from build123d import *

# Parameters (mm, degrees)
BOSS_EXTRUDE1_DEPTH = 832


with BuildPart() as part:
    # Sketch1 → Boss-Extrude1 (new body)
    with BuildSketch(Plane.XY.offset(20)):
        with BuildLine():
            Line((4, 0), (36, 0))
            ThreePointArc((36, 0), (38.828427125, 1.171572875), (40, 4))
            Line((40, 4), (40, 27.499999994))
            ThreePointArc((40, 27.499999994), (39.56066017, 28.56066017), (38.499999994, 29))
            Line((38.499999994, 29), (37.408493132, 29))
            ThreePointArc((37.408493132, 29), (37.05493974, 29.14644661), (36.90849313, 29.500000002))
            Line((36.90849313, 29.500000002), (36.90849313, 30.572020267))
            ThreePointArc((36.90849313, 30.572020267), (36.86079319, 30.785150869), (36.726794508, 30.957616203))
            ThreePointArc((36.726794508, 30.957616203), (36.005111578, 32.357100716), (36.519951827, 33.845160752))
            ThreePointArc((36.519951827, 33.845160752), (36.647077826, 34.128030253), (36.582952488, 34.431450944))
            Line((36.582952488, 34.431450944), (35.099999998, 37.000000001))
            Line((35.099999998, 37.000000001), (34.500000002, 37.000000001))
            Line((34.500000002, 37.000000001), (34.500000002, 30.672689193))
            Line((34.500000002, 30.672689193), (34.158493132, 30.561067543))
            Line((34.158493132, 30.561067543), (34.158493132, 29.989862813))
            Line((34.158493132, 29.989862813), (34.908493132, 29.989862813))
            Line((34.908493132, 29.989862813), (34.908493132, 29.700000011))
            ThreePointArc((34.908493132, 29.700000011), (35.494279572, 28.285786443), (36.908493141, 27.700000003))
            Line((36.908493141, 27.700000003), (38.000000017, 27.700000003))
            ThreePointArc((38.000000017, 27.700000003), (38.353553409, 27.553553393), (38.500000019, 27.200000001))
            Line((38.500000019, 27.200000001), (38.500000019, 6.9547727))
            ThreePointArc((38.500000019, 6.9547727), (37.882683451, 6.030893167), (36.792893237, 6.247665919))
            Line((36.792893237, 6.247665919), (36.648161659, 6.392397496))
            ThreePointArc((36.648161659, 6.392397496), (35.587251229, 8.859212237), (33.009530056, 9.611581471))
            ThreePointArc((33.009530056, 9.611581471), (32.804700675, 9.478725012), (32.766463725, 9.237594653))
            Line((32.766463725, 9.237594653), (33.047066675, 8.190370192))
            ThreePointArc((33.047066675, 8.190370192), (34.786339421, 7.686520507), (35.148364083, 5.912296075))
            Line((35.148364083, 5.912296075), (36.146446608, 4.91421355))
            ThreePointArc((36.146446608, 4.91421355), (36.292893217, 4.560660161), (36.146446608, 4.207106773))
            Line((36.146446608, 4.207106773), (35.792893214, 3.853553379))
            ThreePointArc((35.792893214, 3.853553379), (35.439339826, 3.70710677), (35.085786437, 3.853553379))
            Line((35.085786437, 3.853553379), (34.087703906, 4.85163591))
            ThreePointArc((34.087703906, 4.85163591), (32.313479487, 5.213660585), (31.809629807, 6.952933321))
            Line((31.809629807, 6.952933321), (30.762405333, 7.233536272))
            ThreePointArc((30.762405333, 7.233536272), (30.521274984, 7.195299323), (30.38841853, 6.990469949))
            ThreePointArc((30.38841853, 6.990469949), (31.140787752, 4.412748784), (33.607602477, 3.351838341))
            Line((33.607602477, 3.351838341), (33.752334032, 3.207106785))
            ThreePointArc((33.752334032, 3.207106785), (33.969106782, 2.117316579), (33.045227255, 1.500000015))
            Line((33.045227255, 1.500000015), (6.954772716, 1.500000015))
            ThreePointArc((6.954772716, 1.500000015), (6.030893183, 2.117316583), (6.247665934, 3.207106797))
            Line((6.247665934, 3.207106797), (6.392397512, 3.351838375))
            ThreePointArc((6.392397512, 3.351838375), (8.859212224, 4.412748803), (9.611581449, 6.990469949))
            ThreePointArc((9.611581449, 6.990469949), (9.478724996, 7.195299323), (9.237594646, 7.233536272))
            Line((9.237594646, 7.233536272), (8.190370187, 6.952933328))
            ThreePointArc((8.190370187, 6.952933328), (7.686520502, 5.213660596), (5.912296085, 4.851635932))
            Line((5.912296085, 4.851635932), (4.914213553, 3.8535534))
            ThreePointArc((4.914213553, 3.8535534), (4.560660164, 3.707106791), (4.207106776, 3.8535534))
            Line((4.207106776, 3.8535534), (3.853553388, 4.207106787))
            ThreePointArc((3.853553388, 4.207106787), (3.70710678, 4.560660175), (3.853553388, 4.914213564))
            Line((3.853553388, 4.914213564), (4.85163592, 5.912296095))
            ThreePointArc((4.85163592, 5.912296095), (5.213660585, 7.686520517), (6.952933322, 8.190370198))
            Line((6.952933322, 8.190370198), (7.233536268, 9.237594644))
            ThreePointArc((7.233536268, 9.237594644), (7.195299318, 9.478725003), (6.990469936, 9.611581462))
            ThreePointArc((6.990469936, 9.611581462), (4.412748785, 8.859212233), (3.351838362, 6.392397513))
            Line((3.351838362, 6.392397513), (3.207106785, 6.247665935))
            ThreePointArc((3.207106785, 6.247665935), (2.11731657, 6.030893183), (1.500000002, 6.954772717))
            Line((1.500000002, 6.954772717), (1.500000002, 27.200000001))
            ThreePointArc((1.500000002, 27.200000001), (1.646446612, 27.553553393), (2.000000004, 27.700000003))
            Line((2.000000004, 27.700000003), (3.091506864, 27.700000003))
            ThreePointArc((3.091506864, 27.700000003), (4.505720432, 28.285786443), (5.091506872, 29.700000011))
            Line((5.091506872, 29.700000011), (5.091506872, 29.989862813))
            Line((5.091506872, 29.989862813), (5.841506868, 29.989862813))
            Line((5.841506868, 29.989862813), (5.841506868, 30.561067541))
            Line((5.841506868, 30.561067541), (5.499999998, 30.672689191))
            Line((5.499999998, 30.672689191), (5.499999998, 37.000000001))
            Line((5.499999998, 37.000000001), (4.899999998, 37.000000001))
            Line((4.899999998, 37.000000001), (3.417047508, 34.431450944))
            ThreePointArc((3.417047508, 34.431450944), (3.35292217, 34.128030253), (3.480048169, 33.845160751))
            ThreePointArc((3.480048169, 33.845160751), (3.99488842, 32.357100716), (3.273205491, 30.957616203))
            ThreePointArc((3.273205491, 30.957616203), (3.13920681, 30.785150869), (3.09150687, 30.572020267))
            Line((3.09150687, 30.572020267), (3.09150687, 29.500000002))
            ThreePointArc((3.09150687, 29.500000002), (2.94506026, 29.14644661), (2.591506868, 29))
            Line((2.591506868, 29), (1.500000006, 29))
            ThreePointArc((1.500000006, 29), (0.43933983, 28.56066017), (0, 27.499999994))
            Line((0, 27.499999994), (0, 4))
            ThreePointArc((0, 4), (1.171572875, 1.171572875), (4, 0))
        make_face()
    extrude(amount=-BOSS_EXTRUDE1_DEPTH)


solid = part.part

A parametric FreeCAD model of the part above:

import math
import FreeCAD as App
import Part
import Sketcher
Q = App.Units.Quantity

doc = App.newDocument("Part")
body = doc.addObject("PartDesign::Body", "Body")

# Sketch on XY plane
sketch1 = body.newObject("Sketcher::SketchObject", "Sketch")
sketch1.AttachmentSupport = (doc.getObject("XY_Plane"), [""])
sketch1.MapMode = "FlatFace"
sketch1.AttachmentOffset = App.Placement(App.Vector(0, 0, 20), App.Rotation())
sketch1.addGeometry([
    Part.LineSegment(App.Vector(4, 0, 0), App.Vector(36, 0, 0)),  # 0
    Part.ArcOfCircle(Part.Circle(App.Vector(36, 4, 0), App.Vector(0, 0, 1), 4), math.radians(-90), math.radians(0)),  # 1
    Part.LineSegment(App.Vector(40, 4, 0), App.Vector(40, 27.5, 0)),  # 2
    Part.ArcOfCircle(Part.Circle(App.Vector(38.5, 27.5, 0), App.Vector(0, 0, 1), 1.5), math.radians(0), math.radians(90)),  # 3
    Part.LineSegment(App.Vector(38.5, 29, 0), App.Vector(37.41, 29, 0)),  # 4
    Part.ArcOfCircle(Part.Circle(App.Vector(37.41, 29.5, 0), App.Vector(0, 0, 1), 0.5), math.radians(180), math.radians(270)),  # 5
    Part.LineSegment(App.Vector(36.91, 29.5, 0), App.Vector(36.91, 30.57, 0)),  # 6
    Part.ArcOfCircle(Part.Circle(App.Vector(36.41, 30.57, 0), App.Vector(0, 0, 1), 0.5), math.radians(0), math.radians(50)),  # 7
    Part.ArcOfCircle(Part.Circle(App.Vector(38, 32.5, 0), App.Vector(0, 0, 1), 2), math.radians(138), math.radians(230)),  # 8
    Part.ArcOfCircle(Part.Circle(App.Vector(36.15, 34.18, 0), App.Vector(0, 0, 1), 0.5), math.radians(-42), math.radians(30)),  # 9
    Part.LineSegment(App.Vector(36.58, 34.43, 0), App.Vector(35.1, 37, 0)),  # 10
    Part.LineSegment(App.Vector(35.1, 37, 0), App.Vector(34.5, 37, 0)),  # 11
    Part.LineSegment(App.Vector(34.5, 37, 0), App.Vector(34.5, 30.67, 0)),  # 12
    Part.LineSegment(App.Vector(34.5, 30.67, 0), App.Vector(34.16, 30.56, 0)),  # 13
    Part.LineSegment(App.Vector(34.16, 30.56, 0), App.Vector(34.16, 29.99, 0)),  # 14
    Part.LineSegment(App.Vector(34.16, 29.99, 0), App.Vector(34.91, 29.99, 0)),  # 15
    Part.LineSegment(App.Vector(34.91, 29.99, 0), App.Vector(34.91, 29.7, 0)),  # 16
    Part.ArcOfCircle(Part.Circle(App.Vector(36.91, 29.7, 0), App.Vector(0, 0, 1), 2), math.radians(180), math.radians(270)),  # 17
    Part.LineSegment(App.Vector(36.91, 27.7, 0), App.Vector(38, 27.7, 0)),  # 18
    Part.ArcOfCircle(Part.Circle(App.Vector(38, 27.2, 0), App.Vector(0, 0, 1), 0.5), math.radians(0), math.radians(90)),  # 19
    Part.LineSegment(App.Vector(38.5, 27.2, 0), App.Vector(38.5, 6.95, 0)),  # 20
    Part.ArcOfCircle(Part.Circle(App.Vector(37.5, 6.95, 0), App.Vector(0, 0, 1), 1), math.radians(-135), math.radians(0)),  # 21
    Part.LineSegment(App.Vector(36.79, 6.25, 0), App.Vector(36.65, 6.39, 0)),  # 22
    Part.ArcOfCircle(Part.Circle(App.Vector(33.5, 6.5, 0), App.Vector(0, 0, 1), 3.15), math.radians(-2), math.radians(99)),  # 23
    Part.ArcOfCircle(Part.Circle(App.Vector(33.06, 9.32, 0), App.Vector(0, 0, 1), 0.3), math.radians(99), math.radians(195)),  # 24
    Part.LineSegment(App.Vector(32.77, 9.24, 0), App.Vector(33.05, 8.19, 0)),  # 25
    Part.ArcOfCircle(Part.Circle(App.Vector(33.5, 6.5, 0), App.Vector(0, 0, 1), 1.75), math.radians(-20), math.radians(105)),  # 26
    Part.LineSegment(App.Vector(35.15, 5.91, 0), App.Vector(36.15, 4.91, 0)),  # 27
    Part.ArcOfCircle(Part.Circle(App.Vector(35.79, 4.56, 0), App.Vector(0, 0, 1), 0.5), math.radians(-45), math.radians(45)),  # 28
    Part.LineSegment(App.Vector(36.15, 4.21, 0), App.Vector(35.79, 3.85, 0)),  # 29
    Part.ArcOfCircle(Part.Circle(App.Vector(35.44, 4.21, 0), App.Vector(0, 0, 1), 0.5), math.radians(-135), math.radians(-45)),  # 30
    Part.LineSegment(App.Vector(35.09, 3.85, 0), App.Vector(34.09, 4.85, 0)),  # 31
    Part.ArcOfCircle(Part.Circle(App.Vector(33.5, 6.5, 0), App.Vector(0, 0, 1), 1.75), math.radians(165), math.radians(290)),  # 32
    Part.LineSegment(App.Vector(31.81, 6.95, 0), App.Vector(30.76, 7.23, 0)),  # 33
    Part.ArcOfCircle(Part.Circle(App.Vector(30.68, 6.94, 0), App.Vector(0, 0, 1), 0.3), math.radians(75), math.radians(171)),  # 34
    Part.ArcOfCircle(Part.Circle(App.Vector(33.5, 6.5, 0), App.Vector(0, 0, 1), 3.15), math.radians(171), math.radians(272)),  # 35
    Part.LineSegment(App.Vector(33.61, 3.35, 0), App.Vector(33.75, 3.21, 0)),  # 36
    Part.ArcOfCircle(Part.Circle(App.Vector(33.05, 2.5, 0), App.Vector(0, 0, 1), 1), math.radians(-90), math.radians(45)),  # 37
    Part.LineSegment(App.Vector(33.05, 1.5, 0), App.Vector(6.95, 1.5, 0)),  # 38
    Part.ArcOfCircle(Part.Circle(App.Vector(6.95, 2.5, 0), App.Vector(0, 0, 1), 1), math.radians(135), math.radians(270)),  # 39
    Part.LineSegment(App.Vector(6.25, 3.21, 0), App.Vector(6.39, 3.35, 0)),  # 40
    Part.ArcOfCircle(Part.Circle(App.Vector(6.5, 6.5, 0), App.Vector(0, 0, 1), 3.15), math.radians(-92), math.radians(9)),  # 41
    Part.ArcOfCircle(Part.Circle(App.Vector(9.32, 6.94, 0), App.Vector(0, 0, 1), 0.3), math.radians(9), math.radians(105)),  # 42
    Part.LineSegment(App.Vector(9.24, 7.23, 0), App.Vector(8.19, 6.95, 0)),  # 43
    Part.ArcOfCircle(Part.Circle(App.Vector(6.5, 6.5, 0), App.Vector(0, 0, 1), 1.75), math.radians(-110), math.radians(15)),  # 44
    Part.LineSegment(App.Vector(5.91, 4.85, 0), App.Vector(4.91, 3.85, 0)),  # 45
    Part.ArcOfCircle(Part.Circle(App.Vector(4.56, 4.21, 0), App.Vector(0, 0, 1), 0.5), math.radians(-135), math.radians(-45)),  # 46
    Part.LineSegment(App.Vector(4.21, 3.85, 0), App.Vector(3.85, 4.21, 0)),  # 47
    Part.ArcOfCircle(Part.Circle(App.Vector(4.21, 4.56, 0), App.Vector(0, 0, 1), 0.5), math.radians(135), math.radians(225)),  # 48
    Part.LineSegment(App.Vector(3.85, 4.91, 0), App.Vector(4.85, 5.91, 0)),  # 49
    Part.ArcOfCircle(Part.Circle(App.Vector(6.5, 6.5, 0), App.Vector(0, 0, 1), 1.75), math.radians(75), math.radians(200)),  # 50
    Part.LineSegment(App.Vector(6.95, 8.19, 0), App.Vector(7.23, 9.24, 0)),  # 51
    Part.ArcOfCircle(Part.Circle(App.Vector(6.94, 9.32, 0), App.Vector(0, 0, 1), 0.3), math.radians(-15), math.radians(81)),  # 52
    Part.ArcOfCircle(Part.Circle(App.Vector(6.5, 6.5, 0), App.Vector(0, 0, 1), 3.15), math.radians(81), math.radians(182)),  # 53
    Part.LineSegment(App.Vector(3.35, 6.39, 0), App.Vector(3.21, 6.25, 0)),  # 54
    Part.ArcOfCircle(Part.Circle(App.Vector(2.5, 6.95, 0), App.Vector(0, 0, 1), 1), math.radians(180), math.radians(315)),  # 55
    Part.LineSegment(App.Vector(1.5, 6.95, 0), App.Vector(1.5, 27.2, 0)),  # 56
    Part.ArcOfCircle(Part.Circle(App.Vector(2, 27.2, 0), App.Vector(0, 0, 1), 0.5), math.radians(90), math.radians(180)),  # 57
    Part.LineSegment(App.Vector(2, 27.7, 0), App.Vector(3.09, 27.7, 0)),  # 58
    Part.ArcOfCircle(Part.Circle(App.Vector(3.09, 29.7, 0), App.Vector(0, 0, 1), 2), math.radians(-90), math.radians(0)),  # 59
    Part.LineSegment(App.Vector(5.09, 29.7, 0), App.Vector(5.09, 29.99, 0)),  # 60
    Part.LineSegment(App.Vector(5.09, 29.99, 0), App.Vector(5.84, 29.99, 0)),  # 61
    Part.LineSegment(App.Vector(5.84, 29.99, 0), App.Vector(5.84, 30.56, 0)),  # 62
    Part.LineSegment(App.Vector(5.84, 30.56, 0), App.Vector(5.5, 30.67, 0)),  # 63
    Part.LineSegment(App.Vector(5.5, 30.67, 0), App.Vector(5.5, 37, 0)),  # 64
    Part.LineSegment(App.Vector(5.5, 37, 0), App.Vector(4.9, 37, 0)),  # 65
    Part.LineSegment(App.Vector(4.9, 37, 0), App.Vector(3.42, 34.43, 0)),  # 66
    Part.ArcOfCircle(Part.Circle(App.Vector(3.85, 34.18, 0), App.Vector(0, 0, 1), 0.5), math.radians(150), math.radians(222)),  # 67
    Part.ArcOfCircle(Part.Circle(App.Vector(2, 32.5, 0), App.Vector(0, 0, 1), 2), math.radians(-50), math.radians(42)),  # 68
    Part.ArcOfCircle(Part.Circle(App.Vector(3.59, 30.57, 0), App.Vector(0, 0, 1), 0.5), math.radians(130), math.radians(180)),  # 69
    Part.LineSegment(App.Vector(3.09, 30.57, 0), App.Vector(3.09, 29.5, 0)),  # 70
    Part.ArcOfCircle(Part.Circle(App.Vector(2.59, 29.5, 0), App.Vector(0, 0, 1), 0.5), math.radians(-90), math.radians(0)),  # 71
    Part.LineSegment(App.Vector(2.59, 29, 0), App.Vector(1.5, 29, 0)),  # 72
    Part.ArcOfCircle(Part.Circle(App.Vector(1.5, 27.5, 0), App.Vector(0, 0, 1), 1.5), math.radians(90), math.radians(180)),  # 73
    Part.LineSegment(App.Vector(0, 27.5, 0), App.Vector(0, 4, 0)),  # 74
    Part.ArcOfCircle(Part.Circle(App.Vector(4, 4, 0), App.Vector(0, 0, 1), 4), math.radians(180), math.radians(270)),  # 75
], False)
sketch1.addConstraint([
    Sketcher.Constraint("Tangent", 0, 2, 1, 1),
    Sketcher.Constraint("Tangent", 1, 2, 2, 1),
    Sketcher.Constraint("Tangent", 2, 2, 3, 1),
    Sketcher.Constraint("Tangent", 3, 2, 4, 1),
    Sketcher.Constraint("Tangent", 4, 2, 5, 2),
    Sketcher.Constraint("Tangent", 5, 1, 6, 1),
    Sketcher.Constraint("Tangent", 6, 2, 7, 1),
    Sketcher.Constraint("Tangent", 7, 2, 8, 2),
    Sketcher.Constraint("Tangent", 8, 1, 9, 1),
    Sketcher.Constraint("Tangent", 9, 2, 10, 1),
    Sketcher.Constraint("Coincident", 10, 2, 11, 1),
    Sketcher.Constraint("Coincident", 11, 2, 12, 1),
    Sketcher.Constraint("Coincident", 12, 2, 13, 1),
    Sketcher.Constraint("Coincident", 13, 2, 14, 1),
    Sketcher.Constraint("Coincident", 14, 2, 15, 1),
    Sketcher.Constraint("Coincident", 15, 2, 16, 1),
    Sketcher.Constraint("Tangent", 16, 2, 17, 1),
    Sketcher.Constraint("Tangent", 17, 2, 18, 1),
    Sketcher.Constraint("Tangent", 18, 2, 19, 2),
    Sketcher.Constraint("Tangent", 19, 1, 20, 1),
    Sketcher.Constraint("Tangent", 20, 2, 21, 2),
    Sketcher.Constraint("Tangent", 21, 1, 22, 1),
    Sketcher.Constraint("Coincident", 22, 2, 23, 1),
    Sketcher.Constraint("Tangent", 23, 2, 24, 1),
    Sketcher.Constraint("Tangent", 24, 2, 25, 1),
    Sketcher.Constraint("Coincident", 25, 2, 26, 2),
    Sketcher.Constraint("Coincident", 26, 1, 27, 1),
    Sketcher.Constraint("Tangent", 27, 2, 28, 2),
    Sketcher.Constraint("Tangent", 28, 1, 29, 1),
    Sketcher.Constraint("Tangent", 29, 2, 30, 2),
    Sketcher.Constraint("Tangent", 30, 1, 31, 1),
    Sketcher.Constraint("Coincident", 31, 2, 32, 2),
    Sketcher.Constraint("Coincident", 32, 1, 33, 1),
    Sketcher.Constraint("Tangent", 33, 2, 34, 1),
    Sketcher.Constraint("Tangent", 34, 2, 35, 1),
    Sketcher.Constraint("Coincident", 35, 2, 36, 1),
    Sketcher.Constraint("Tangent", 36, 2, 37, 2),
    Sketcher.Constraint("Tangent", 37, 1, 38, 1),
    Sketcher.Constraint("Tangent", 38, 2, 39, 2),
    Sketcher.Constraint("Tangent", 39, 1, 40, 1),
    Sketcher.Constraint("Coincident", 40, 2, 41, 1),
    Sketcher.Constraint("Tangent", 41, 2, 42, 1),
    Sketcher.Constraint("Tangent", 42, 2, 43, 1),
    Sketcher.Constraint("Coincident", 43, 2, 44, 2),
    Sketcher.Constraint("Coincident", 44, 1, 45, 1),
    Sketcher.Constraint("Tangent", 45, 2, 46, 2),
    Sketcher.Constraint("Tangent", 46, 1, 47, 1),
    Sketcher.Constraint("Tangent", 47, 2, 48, 2),
    Sketcher.Constraint("Tangent", 48, 1, 49, 1),
    Sketcher.Constraint("Coincident", 49, 2, 50, 2),
    Sketcher.Constraint("Coincident", 50, 1, 51, 1),
    Sketcher.Constraint("Tangent", 51, 2, 52, 1),
    Sketcher.Constraint("Tangent", 52, 2, 53, 1),
    Sketcher.Constraint("Coincident", 53, 2, 54, 1),
    Sketcher.Constraint("Tangent", 54, 2, 55, 2),
    Sketcher.Constraint("Tangent", 55, 1, 56, 1),
    Sketcher.Constraint("Tangent", 56, 2, 57, 2),
    Sketcher.Constraint("Tangent", 57, 1, 58, 1),
    Sketcher.Constraint("Tangent", 58, 2, 59, 1),
    Sketcher.Constraint("Tangent", 59, 2, 60, 1),
    Sketcher.Constraint("Coincident", 60, 2, 61, 1),
    Sketcher.Constraint("Coincident", 61, 2, 62, 1),
    Sketcher.Constraint("Coincident", 62, 2, 63, 1),
    Sketcher.Constraint("Coincident", 63, 2, 64, 1),
    Sketcher.Constraint("Coincident", 64, 2, 65, 1),
    Sketcher.Constraint("Coincident", 65, 2, 66, 1),
    Sketcher.Constraint("Tangent", 66, 2, 67, 1),
    Sketcher.Constraint("Tangent", 67, 2, 68, 2),
    Sketcher.Constraint("Tangent", 68, 1, 69, 1),
    Sketcher.Constraint("Tangent", 69, 2, 70, 1),
    Sketcher.Constraint("Tangent", 70, 2, 71, 2),
    Sketcher.Constraint("Tangent", 71, 1, 72, 1),
    Sketcher.Constraint("Tangent", 72, 2, 73, 1),
    Sketcher.Constraint("Tangent", 73, 2, 74, 1),
    Sketcher.Constraint("Tangent", 74, 2, 75, 1),
    Sketcher.Constraint("Tangent", 75, 2, 0, 1),
    Sketcher.Constraint("Horizontal", 0),
    Sketcher.Constraint("Vertical", 2),
    Sketcher.Constraint("Horizontal", 4),
    Sketcher.Constraint("Vertical", 6),
    Sketcher.Constraint("Horizontal", 11),
    Sketcher.Constraint("Vertical", 12),
    Sketcher.Constraint("Vertical", 14),
    Sketcher.Constraint("Horizontal", 15),
    Sketcher.Constraint("Vertical", 16),
    Sketcher.Constraint("Horizontal", 18),
    Sketcher.Constraint("Vertical", 20),
    Sketcher.Constraint("Horizontal", 38),
    Sketcher.Constraint("Vertical", 56),
    Sketcher.Constraint("Horizontal", 58),
    Sketcher.Constraint("Vertical", 60),
    Sketcher.Constraint("Horizontal", 61),
    Sketcher.Constraint("Vertical", 62),
    Sketcher.Constraint("Vertical", 64),
    Sketcher.Constraint("Horizontal", 65),
    Sketcher.Constraint("Vertical", 70),
    Sketcher.Constraint("Horizontal", 72),
    Sketcher.Constraint("Vertical", 74),
    Sketcher.Constraint("Coincident", 26, 3, 23, 3),
    Sketcher.Constraint("Coincident", 32, 3, 23, 3),
    Sketcher.Constraint("Coincident", 35, 3, 23, 3),
    Sketcher.Constraint("Coincident", 44, 3, 41, 3),
    Sketcher.Constraint("Coincident", 50, 3, 41, 3),
    Sketcher.Constraint("Coincident", 53, 3, 41, 3),
    Sketcher.Constraint("Equal", 5, 7),
    Sketcher.Constraint("Equal", 7, 9),
    Sketcher.Constraint("Equal", 8, 17),
    Sketcher.Constraint("Equal", 9, 19),
    Sketcher.Constraint("Equal", 19, 28),
    Sketcher.Constraint("Equal", 28, 30),
    Sketcher.Constraint("Equal", 26, 32),
    Sketcher.Constraint("Equal", 24, 34),
    Sketcher.Constraint("Equal", 23, 35),
    Sketcher.Constraint("Equal", 21, 37),
    Sketcher.Constraint("Equal", 37, 39),
    Sketcher.Constraint("Equal", 35, 41),
    Sketcher.Constraint("Equal", 34, 42),
    Sketcher.Constraint("Equal", 32, 44),
    Sketcher.Constraint("Equal", 30, 46),
    Sketcher.Constraint("Equal", 46, 48),
    Sketcher.Constraint("Equal", 44, 50),
    Sketcher.Constraint("Equal", 42, 52),
    Sketcher.Constraint("Equal", 41, 53),
    Sketcher.Constraint("Equal", 39, 55),
    Sketcher.Constraint("Equal", 48, 57),
    Sketcher.Constraint("Equal", 17, 59),
    Sketcher.Constraint("Equal", 57, 67),
    Sketcher.Constraint("Equal", 59, 68),
    Sketcher.Constraint("Equal", 67, 69),
    Sketcher.Constraint("Equal", 69, 71),
    Sketcher.Constraint("Equal", 3, 73),
    Sketcher.Constraint("Equal", 1, 75),
    Sketcher.Constraint("PointOnObject", 0, 2, -1),
    Sketcher.Constraint("PointOnObject", 73, 2, -2),
    Sketcher.Constraint("Parallel", 22, 27),
    Sketcher.Constraint("Perpendicular", 27, 29),
    Sketcher.Constraint("Perpendicular", 29, 31),
    Sketcher.Constraint("Parallel", 31, 36),
    Sketcher.Constraint("Perpendicular", 36, 40),
    Sketcher.Constraint("Perpendicular", 25, 43),
    Sketcher.Constraint("Parallel", 40, 45),
    Sketcher.Constraint("Perpendicular", 45, 47),
    Sketcher.Constraint("Perpendicular", 47, 49),
    Sketcher.Constraint("Perpendicular", 33, 51),
    Sketcher.Constraint("Parallel", 49, 54),
    Sketcher.Constraint("Horizontal", 35, 3, 41, 3),
    Sketcher.Constraint("Horizontal", 34, 3, 42, 3),
    Sketcher.Constraint("Horizontal", 30, 3, 46, 3),
    Sketcher.Constraint("Horizontal", 28, 3, 48, 3),
    Sketcher.Constraint("Horizontal", 24, 3, 52, 3),
    Sketcher.Constraint("Horizontal", 21, 3, 55, 3),
    Sketcher.Constraint("Horizontal", 19, 3, 57, 3),
    Sketcher.Constraint("Horizontal", 9, 3, 67, 3),
    Sketcher.Constraint("Horizontal", 8, 3, 68, 3),
    Sketcher.Constraint("Horizontal", 7, 3, 69, 3),
    Sketcher.Constraint("Horizontal", 5, 3, 71, 3),
    Sketcher.Constraint("Horizontal", 46, 3, 28, 1),
    Sketcher.Constraint("Horizontal", 29, 2, 30, 1),
    Sketcher.Constraint("Horizontal", 35, 2, 40, 2),
    Sketcher.Constraint("Horizontal", 33, 2, 42, 2),
    Sketcher.Constraint("Horizontal", 31, 2, 44, 1),
    Sketcher.Constraint("Horizontal", 22, 2, 53, 2),
    Sketcher.Constraint("Horizontal", 15, 2, 60, 2),
    Sketcher.Constraint("Horizontal", 13, 2, 62, 2),
    Sketcher.Constraint("Horizontal", 12, 2, 63, 2),
    Sketcher.Constraint("Horizontal", 11, 2, 64, 2),
    Sketcher.Constraint("Horizontal", 9, 2, 66, 2),
    Sketcher.Constraint("Vertical", 8, 3, 19, 3),
    Sketcher.Constraint("Vertical", 57, 3, 68, 3),
    Sketcher.Constraint("Vertical", 17, 3, 5, 1),
    Sketcher.Constraint("Vertical", 3, 2, 19, 1),
    Sketcher.Constraint("Vertical", 73, 3, 55, 1),
    Sketcher.Constraint("Vertical", 58, 2, 69, 2),
    Sketcher.Constraint("Equal", 15, 61),
    Sketcher.Constraint("Equal", 11, 65),
    Sketcher.Constraint("Equal", 27, 31),
    Sketcher.Constraint("Equal", 25, 33),
    Sketcher.Constraint("Equal", 22, 36),
    Sketcher.Constraint("Radius", 1, Q("4 mm")),
    Sketcher.Constraint("Radius", 8, Q("2 mm")),
    Sketcher.Constraint("Radius", 21, Q("1 mm")),
    Sketcher.Constraint("Radius", 3, Q("1.5 mm")),
    Sketcher.Constraint("Radius", 5, Q("0.5 mm")),
    Sketcher.Constraint("Radius", 24, Q("0.3 mm")),
    Sketcher.Constraint("DistanceX", 0, 1, 0, 2, Q("32 mm")),
    Sketcher.Constraint("Angle", 10, Q("120 deg")),
    Sketcher.Constraint("Angle", 25, Q("-75 deg")),
    Sketcher.Constraint("Radius", 23, Q("3.15 mm")),
    Sketcher.Constraint("Radius", 26, Q("1.75 mm")),
    Sketcher.Constraint("DistanceX", 11, 2, 11, 1, Q("0.6 mm")),
    Sketcher.Constraint("DistanceY", 2, 1, 2, 2, Q("23.5 mm")),
    Sketcher.Constraint("DistanceY", -1, 1, 10, 2, Q("37 mm")),
    Sketcher.Constraint("Angle", 13, Q("-161.9 deg")),
    Sketcher.Constraint("DistanceX", 15, 1, 15, 2, Q("0.75 mm")),
    Sketcher.Constraint("DistanceY", -1, 1, 8, 3, Q("32.5 mm")),
    Sketcher.Constraint("DistanceY", -1, 1, 17, 3, Q("29.7 mm")),
    Sketcher.Constraint("DistanceX", -1, 1, 23, 3, Q("33.5 mm")),
    Sketcher.Constraint("DistanceY", -1, 1, 23, 3, Q("6.5 mm")),
    Sketcher.Constraint("DistanceY", -1, 1, 37, 3, Q("2.5 mm")),
    Sketcher.Constraint("DistanceX", -1, 1, 10, 2, Q("35.1 mm")),
    Sketcher.Constraint("Distance", 27, Q("1.411502 mm")),
    Sketcher.Constraint("DistanceY", 6, 1, 6, 2, Q("1.07202 mm")),
    Sketcher.Constraint("DistanceY", 12, 2, 12, 1, Q("6.327311 mm")),
    Sketcher.Constraint("Distance", 22, Q("0.204681 mm")),
    Sketcher.Constraint("DistanceY", 14, 2, 14, 1, Q("0.571205 mm")),
    Sketcher.Constraint("DistanceX", -1, 1, 24, 3, Q("33.056241 mm")),
])
pad1 = body.newObject("PartDesign::Pad", "Pad")
pad1.Profile = sketch1
pad1.Length = 832
pad1.Reversed = True

doc.recompute()
